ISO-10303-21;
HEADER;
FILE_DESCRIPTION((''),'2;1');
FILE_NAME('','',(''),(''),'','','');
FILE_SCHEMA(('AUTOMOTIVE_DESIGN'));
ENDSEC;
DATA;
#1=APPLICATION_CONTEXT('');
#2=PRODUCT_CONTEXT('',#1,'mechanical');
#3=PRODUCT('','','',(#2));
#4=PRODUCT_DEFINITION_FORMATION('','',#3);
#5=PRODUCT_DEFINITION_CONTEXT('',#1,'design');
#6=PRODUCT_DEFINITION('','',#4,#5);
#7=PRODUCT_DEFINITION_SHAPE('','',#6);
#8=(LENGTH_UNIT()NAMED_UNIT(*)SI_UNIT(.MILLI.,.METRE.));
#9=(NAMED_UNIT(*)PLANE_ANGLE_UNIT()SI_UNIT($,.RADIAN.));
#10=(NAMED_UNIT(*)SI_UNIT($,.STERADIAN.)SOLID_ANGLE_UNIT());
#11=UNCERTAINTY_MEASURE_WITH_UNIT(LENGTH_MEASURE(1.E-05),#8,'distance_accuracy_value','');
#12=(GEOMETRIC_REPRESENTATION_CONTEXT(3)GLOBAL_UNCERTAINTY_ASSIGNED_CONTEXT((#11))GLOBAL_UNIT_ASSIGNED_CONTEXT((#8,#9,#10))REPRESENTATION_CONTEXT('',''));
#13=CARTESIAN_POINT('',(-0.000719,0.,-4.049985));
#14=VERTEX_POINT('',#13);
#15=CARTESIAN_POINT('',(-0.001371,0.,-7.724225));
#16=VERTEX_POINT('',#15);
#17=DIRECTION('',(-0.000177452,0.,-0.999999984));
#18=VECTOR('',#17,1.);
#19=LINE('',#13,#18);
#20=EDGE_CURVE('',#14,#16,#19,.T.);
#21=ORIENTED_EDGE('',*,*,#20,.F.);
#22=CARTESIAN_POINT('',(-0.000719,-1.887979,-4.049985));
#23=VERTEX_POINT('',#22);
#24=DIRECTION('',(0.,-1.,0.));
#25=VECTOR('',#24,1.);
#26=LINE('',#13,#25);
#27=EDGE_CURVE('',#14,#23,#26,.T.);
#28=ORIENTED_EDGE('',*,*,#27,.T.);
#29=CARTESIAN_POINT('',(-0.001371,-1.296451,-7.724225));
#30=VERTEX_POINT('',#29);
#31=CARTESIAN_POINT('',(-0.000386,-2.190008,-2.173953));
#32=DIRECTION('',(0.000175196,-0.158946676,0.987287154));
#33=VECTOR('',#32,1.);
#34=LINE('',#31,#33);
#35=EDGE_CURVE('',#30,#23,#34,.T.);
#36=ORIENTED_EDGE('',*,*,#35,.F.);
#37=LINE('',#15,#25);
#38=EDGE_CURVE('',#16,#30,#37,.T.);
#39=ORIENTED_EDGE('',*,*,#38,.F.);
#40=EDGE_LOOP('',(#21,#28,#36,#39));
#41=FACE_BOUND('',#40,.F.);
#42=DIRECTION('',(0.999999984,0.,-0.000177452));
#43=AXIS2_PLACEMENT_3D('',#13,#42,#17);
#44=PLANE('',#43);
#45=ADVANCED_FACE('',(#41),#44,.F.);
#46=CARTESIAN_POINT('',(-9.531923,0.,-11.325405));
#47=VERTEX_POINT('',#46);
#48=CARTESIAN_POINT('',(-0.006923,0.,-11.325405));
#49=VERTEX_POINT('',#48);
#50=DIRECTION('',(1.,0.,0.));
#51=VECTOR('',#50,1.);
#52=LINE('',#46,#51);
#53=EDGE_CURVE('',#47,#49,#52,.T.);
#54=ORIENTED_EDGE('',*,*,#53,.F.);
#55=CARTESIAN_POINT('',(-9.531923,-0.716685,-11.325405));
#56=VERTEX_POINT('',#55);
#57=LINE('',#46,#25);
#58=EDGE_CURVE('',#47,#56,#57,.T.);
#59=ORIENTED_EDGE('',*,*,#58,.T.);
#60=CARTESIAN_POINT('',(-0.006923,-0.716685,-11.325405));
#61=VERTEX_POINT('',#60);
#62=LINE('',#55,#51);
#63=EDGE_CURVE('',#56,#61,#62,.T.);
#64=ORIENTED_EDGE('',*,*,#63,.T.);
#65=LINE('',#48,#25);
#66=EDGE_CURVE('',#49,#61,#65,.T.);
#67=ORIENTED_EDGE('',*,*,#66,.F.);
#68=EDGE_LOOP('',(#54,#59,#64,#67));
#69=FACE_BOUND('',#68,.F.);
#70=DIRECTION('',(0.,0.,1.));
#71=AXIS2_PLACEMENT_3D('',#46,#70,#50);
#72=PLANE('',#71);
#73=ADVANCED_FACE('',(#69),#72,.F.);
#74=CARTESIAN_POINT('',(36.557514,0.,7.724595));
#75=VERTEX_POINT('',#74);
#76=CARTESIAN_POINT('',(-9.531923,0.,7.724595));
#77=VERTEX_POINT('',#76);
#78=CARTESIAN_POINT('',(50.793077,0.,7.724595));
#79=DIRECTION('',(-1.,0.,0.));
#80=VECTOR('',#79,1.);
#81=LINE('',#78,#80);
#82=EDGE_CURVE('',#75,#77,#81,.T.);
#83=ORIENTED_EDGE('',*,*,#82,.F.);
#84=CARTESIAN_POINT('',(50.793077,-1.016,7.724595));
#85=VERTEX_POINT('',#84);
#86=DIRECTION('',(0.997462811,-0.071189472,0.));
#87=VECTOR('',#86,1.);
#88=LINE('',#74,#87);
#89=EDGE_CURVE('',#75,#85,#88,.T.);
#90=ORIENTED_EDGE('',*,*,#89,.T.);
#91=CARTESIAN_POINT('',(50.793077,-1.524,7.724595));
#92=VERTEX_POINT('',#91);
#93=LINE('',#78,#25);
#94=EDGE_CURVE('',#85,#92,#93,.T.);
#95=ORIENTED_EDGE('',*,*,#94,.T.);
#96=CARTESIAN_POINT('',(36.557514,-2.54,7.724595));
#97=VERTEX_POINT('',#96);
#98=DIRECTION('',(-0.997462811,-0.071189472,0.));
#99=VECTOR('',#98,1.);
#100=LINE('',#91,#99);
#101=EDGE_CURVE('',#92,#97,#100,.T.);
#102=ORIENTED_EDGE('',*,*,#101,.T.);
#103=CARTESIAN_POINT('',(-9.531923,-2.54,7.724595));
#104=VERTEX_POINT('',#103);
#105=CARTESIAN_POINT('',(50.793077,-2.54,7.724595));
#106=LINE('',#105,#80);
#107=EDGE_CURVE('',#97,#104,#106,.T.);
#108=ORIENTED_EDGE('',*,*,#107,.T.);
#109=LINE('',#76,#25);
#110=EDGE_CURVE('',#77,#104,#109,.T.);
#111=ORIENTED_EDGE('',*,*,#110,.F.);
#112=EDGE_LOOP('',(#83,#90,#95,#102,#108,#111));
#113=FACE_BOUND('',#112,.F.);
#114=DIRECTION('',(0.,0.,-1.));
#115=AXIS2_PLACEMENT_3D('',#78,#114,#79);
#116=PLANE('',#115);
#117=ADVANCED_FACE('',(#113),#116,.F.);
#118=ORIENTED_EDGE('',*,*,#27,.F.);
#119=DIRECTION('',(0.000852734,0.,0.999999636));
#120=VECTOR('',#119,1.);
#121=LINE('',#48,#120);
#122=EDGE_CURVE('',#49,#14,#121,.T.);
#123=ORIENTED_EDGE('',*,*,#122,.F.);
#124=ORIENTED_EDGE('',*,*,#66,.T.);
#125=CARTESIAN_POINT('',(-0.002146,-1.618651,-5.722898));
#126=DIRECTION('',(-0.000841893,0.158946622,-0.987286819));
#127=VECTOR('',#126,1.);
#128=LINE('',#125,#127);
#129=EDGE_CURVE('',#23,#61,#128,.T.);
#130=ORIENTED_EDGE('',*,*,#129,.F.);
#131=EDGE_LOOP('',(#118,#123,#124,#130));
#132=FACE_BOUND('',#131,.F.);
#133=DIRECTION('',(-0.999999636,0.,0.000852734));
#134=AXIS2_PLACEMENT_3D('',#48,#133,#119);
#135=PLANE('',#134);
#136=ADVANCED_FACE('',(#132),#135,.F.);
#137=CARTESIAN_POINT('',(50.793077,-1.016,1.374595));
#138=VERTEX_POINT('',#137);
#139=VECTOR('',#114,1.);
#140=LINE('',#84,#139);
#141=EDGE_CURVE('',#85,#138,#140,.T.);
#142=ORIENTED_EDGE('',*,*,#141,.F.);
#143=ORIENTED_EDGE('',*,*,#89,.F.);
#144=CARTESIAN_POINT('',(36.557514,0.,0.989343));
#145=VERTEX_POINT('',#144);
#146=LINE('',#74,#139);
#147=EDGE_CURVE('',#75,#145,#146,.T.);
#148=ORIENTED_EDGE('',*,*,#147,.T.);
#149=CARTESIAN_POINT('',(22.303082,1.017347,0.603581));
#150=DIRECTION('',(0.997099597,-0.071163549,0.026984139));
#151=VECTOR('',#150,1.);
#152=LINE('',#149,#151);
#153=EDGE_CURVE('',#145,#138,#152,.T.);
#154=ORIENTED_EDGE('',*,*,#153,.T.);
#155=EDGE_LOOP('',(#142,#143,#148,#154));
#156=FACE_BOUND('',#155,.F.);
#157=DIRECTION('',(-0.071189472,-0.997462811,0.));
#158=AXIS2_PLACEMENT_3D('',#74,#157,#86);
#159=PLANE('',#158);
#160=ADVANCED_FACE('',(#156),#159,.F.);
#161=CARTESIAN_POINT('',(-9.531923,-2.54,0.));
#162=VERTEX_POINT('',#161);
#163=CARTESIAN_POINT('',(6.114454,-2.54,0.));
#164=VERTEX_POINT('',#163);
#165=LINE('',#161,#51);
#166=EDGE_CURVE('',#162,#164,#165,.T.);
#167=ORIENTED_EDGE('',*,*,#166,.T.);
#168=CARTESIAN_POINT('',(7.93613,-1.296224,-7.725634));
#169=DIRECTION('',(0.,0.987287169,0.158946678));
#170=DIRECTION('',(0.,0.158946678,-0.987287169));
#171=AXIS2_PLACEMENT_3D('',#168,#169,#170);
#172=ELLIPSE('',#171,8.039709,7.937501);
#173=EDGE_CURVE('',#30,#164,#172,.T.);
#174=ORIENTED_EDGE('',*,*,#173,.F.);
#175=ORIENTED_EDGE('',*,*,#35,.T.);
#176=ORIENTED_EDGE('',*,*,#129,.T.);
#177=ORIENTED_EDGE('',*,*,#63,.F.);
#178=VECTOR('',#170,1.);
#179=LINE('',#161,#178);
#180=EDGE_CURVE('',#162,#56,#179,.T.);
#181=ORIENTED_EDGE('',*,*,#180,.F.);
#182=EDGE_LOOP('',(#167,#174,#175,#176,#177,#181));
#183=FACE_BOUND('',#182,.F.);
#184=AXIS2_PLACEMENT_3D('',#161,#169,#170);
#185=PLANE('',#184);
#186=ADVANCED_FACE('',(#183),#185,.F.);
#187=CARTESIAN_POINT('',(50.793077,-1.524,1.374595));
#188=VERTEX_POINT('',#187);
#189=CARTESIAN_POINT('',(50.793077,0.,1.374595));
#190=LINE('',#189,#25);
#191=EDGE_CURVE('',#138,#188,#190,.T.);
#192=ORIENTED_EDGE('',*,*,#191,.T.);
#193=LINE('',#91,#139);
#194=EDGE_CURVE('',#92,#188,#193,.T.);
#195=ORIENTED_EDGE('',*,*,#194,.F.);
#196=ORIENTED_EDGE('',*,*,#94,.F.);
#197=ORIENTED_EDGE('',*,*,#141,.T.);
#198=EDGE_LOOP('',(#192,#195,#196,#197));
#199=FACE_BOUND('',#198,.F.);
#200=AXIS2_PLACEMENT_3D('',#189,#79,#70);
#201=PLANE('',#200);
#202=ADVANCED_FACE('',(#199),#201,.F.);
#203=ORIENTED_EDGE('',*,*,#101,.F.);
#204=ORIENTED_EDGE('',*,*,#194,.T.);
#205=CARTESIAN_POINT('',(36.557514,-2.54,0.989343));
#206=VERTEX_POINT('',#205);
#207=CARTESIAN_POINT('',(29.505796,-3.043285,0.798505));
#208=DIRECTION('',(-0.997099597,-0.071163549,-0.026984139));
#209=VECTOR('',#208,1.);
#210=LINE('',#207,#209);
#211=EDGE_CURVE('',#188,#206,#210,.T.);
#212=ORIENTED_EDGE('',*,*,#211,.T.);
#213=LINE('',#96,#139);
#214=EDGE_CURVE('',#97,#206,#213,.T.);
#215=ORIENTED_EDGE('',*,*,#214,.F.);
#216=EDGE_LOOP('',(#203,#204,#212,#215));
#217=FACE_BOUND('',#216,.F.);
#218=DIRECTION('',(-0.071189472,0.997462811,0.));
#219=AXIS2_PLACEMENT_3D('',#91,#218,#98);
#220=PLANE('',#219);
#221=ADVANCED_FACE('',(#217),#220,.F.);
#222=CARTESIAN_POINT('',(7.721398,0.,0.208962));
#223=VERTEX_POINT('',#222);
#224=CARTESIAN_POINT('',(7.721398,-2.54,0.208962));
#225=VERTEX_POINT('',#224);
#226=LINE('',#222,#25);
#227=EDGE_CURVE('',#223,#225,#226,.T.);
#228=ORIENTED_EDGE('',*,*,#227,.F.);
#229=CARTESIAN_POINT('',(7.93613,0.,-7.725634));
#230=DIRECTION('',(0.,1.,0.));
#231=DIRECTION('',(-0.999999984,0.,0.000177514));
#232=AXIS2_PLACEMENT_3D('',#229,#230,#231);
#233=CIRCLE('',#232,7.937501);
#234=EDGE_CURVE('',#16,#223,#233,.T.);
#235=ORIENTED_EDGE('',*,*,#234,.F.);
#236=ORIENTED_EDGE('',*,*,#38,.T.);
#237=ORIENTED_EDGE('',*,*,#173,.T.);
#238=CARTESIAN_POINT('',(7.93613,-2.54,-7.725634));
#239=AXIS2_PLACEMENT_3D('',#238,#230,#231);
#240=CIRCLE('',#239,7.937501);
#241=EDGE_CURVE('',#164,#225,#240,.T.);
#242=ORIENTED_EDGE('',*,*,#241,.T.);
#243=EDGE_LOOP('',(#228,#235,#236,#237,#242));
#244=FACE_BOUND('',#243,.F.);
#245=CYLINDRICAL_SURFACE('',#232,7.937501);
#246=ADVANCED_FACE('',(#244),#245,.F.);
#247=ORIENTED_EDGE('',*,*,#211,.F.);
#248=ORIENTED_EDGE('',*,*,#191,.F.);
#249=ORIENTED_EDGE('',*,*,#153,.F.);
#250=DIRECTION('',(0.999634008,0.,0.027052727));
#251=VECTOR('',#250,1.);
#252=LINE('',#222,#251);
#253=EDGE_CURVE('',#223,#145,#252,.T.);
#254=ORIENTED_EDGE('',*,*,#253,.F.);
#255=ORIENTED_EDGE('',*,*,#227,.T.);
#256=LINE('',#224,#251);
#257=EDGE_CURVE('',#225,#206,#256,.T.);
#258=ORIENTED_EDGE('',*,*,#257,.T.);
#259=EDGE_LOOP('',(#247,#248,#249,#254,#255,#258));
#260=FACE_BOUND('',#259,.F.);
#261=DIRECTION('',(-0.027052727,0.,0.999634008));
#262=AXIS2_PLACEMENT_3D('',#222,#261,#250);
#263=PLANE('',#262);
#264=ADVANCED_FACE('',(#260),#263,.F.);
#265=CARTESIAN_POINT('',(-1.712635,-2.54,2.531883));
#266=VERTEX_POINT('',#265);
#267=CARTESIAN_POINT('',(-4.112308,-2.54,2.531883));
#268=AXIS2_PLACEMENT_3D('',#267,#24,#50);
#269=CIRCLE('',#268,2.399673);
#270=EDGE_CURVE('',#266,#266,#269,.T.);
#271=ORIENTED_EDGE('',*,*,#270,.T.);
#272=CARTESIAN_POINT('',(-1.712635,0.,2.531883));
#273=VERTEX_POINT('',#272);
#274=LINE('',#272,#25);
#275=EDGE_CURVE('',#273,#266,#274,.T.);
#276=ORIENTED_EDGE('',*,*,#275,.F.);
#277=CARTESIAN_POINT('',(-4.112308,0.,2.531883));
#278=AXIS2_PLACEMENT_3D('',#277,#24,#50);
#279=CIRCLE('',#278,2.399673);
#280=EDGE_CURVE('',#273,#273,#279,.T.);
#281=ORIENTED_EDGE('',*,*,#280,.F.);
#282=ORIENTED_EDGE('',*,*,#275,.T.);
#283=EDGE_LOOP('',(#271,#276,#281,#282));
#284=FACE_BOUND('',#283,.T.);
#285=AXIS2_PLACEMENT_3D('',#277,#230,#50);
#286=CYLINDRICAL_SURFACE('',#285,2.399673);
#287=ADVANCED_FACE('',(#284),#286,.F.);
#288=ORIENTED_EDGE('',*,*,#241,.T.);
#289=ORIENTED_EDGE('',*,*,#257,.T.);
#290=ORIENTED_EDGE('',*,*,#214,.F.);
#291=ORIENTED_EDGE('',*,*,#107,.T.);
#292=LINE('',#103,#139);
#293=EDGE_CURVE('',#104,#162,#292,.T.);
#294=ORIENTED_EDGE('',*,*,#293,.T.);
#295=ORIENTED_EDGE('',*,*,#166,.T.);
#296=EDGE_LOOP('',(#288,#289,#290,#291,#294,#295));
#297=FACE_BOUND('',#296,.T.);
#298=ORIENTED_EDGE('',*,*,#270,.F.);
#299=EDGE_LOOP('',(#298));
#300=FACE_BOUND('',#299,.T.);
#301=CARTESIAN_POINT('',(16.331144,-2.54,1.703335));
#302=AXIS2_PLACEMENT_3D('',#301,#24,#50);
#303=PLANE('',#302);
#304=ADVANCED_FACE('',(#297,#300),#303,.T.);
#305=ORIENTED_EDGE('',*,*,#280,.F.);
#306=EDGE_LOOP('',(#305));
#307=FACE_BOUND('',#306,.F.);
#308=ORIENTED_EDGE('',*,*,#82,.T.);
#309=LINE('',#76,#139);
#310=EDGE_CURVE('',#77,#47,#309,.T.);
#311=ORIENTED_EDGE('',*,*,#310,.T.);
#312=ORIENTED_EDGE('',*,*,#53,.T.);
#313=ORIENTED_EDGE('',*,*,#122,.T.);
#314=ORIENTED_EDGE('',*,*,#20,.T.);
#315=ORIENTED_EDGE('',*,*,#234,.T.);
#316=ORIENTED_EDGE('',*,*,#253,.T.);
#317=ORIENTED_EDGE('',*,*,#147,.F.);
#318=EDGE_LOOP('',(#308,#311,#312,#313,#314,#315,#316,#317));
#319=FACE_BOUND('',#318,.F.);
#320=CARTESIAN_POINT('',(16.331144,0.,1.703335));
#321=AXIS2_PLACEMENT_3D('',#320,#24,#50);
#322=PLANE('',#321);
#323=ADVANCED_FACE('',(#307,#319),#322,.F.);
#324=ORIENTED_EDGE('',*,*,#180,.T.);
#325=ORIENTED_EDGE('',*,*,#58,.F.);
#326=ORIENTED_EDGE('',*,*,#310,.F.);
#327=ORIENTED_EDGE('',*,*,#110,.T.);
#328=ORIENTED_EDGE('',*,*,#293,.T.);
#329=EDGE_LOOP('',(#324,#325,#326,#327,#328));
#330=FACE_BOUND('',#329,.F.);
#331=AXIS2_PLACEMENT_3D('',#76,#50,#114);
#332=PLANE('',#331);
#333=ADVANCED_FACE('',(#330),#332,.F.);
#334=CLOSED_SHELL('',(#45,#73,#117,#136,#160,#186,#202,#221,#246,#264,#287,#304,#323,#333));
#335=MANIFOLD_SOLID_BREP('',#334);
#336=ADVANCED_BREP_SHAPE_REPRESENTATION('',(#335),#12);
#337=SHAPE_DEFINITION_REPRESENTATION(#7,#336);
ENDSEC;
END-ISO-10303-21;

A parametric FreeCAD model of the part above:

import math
import FreeCAD as App
import Part
import Sketcher

V = App.Vector
Q = App.Units.Quantity


def add_polygon(sketch, points):
    """Adds a closed chain of lines whose ends are joined by coincident constraints."""
    first, n = sketch.GeometryCount, len(points)
    for a, b in zip(points, points[1:] + points[:1]):
        sketch.addGeometry(Part.LineSegment(App.Vector(*a, 0), App.Vector(*b, 0)), False)
    for i in range(n):
        sketch.addConstraint(Sketcher.Constraint("Coincident", first + i, 2, first + (i + 1) % n, 1))

doc = App.newDocument("Part")
params = doc.addObject("Spreadsheet::Sheet", "Params")
for row, (alias, value) in enumerate([
    ("sketch1_radius", "0.3125 in"),
    ("sketch1_height", "0.75 in"),
    ("sketch1_height2", "0.25 in"),
    ("sketch1_width", "2.375 in"),
    ("pad1_length", "0.1 in"),
    ("pocket1_length", "1 in"),
    ("sketch3_height", "0.04 in"),
    ("pocket2_length", "1 in"),
], start=1):
    params.set(f"A{row}", alias)
    params.set(f"B{row}", "=" + value)
    params.setAlias(f"B{row}", alias)

body = doc.addObject("PartDesign::Body", "Body")

sketch1 = doc.addObject("Sketcher::SketchObject", "Sketch")
body.addObject(sketch1)
sketch1.AttachmentSupport = (doc.XZ_Plane, [""])
sketch1.MapMode = "FlatFace"
sketch1.addGeometry([
    Part.LineSegment(V(50.8, 7.7, 0), V(-9.5, 7.7, 0)),
    Part.LineSegment(V(-9.5, 7.7, 0), V(-9.5, -11.3, 0)),
    Part.LineSegment(V(-9.5, -11.3, 0), V(0, -11.3, 0)),
    Part.LineSegment(V(0, -11.3, 0), V(0, -4, 0)),
    Part.LineSegment(V(0, -4, 0), V(0, -7.7, 0)),
    Part.ArcOfCircle(Part.Circle(V(7.9, -7.7, 0), V(0, 0, 1), 7.9), math.radians(92), math.radians(180)),
    Part.LineSegment(V(7.7, 0.2, 0), V(50.8, 1.4, 0)),
    Part.LineSegment(V(50.8, 1.4, 0), V(50.8, 7.7, 0)),
    Part.Circle(V(-4.1, 2.5, 0), V(0, 0, 1), 2.4),
], False)
sketch1.addConstraint([
    Sketcher.Constraint("Coincident", 0, 2, 1, 1),
    Sketcher.Constraint("Coincident", 1, 2, 2, 1),
    Sketcher.Constraint("Coincident", 2, 2, 3, 1),
    Sketcher.Constraint("Coincident", 3, 2, 4, 1),
    Sketcher.Constraint("Tangent", 4, 2, 5, 2),
    Sketcher.Constraint("Tangent", 5, 1, 6, 1),
    Sketcher.Constraint("Coincident", 6, 2, 7, 1),
    Sketcher.Constraint("Coincident", 7, 2, 0, 1),
    Sketcher.Constraint("Horizontal", 0),
    Sketcher.Constraint("Vertical", 1),
    Sketcher.Constraint("Horizontal", 2),
    Sketcher.Constraint("Vertical", 7),
    Sketcher.Constraint("Radius", 5, Q("0.3125 in")),
    Sketcher.Constraint("DistanceX", 2, 2, 6, 2, Q("2 in")),
    Sketcher.Constraint("DistanceY", 1, 2, 1, 1, Q("0.75 in")),
    Sketcher.Constraint("DistanceY", 7, 1, 7, 2, Q("0.25 in")),
    Sketcher.Constraint("DistanceX", 0, 2, 0, 1, Q("2.375 in")),
    Sketcher.Constraint("Diameter", 8, Q("4.799346 mm")),
    Sketcher.Constraint("DistanceX", -1, 1, 5, 1, Q("7.721398 mm")),
    Sketcher.Constraint("Distance", 4, Q("3.67424 mm")),
    Sketcher.Constraint("Distance", 6, Q("43.087449 mm")),
    Sketcher.Constraint("DistanceX", -1, 1, 5, 3, Q("7.93613 mm")),
    Sketcher.Constraint("DistanceX", 3, 2, -1, 1, Q("0.000719 mm")),
    Sketcher.Constraint("DistanceY", -1, 1, 5, 1, Q("0.208962 mm")),
    Sketcher.Constraint("DistanceX", 8, 3, 3, 2, Q("4.111589 mm")),
    Sketcher.Constraint("DistanceY", 5, 1, 8, 3, Q("2.322921 mm")),
])
sketch1.setExpression("Constraints[12]", "Params.sketch1_radius")
sketch1.setExpression("Constraints[14]", "Params.sketch1_height")
sketch1.setExpression("Constraints[15]", "Params.sketch1_height2")
sketch1.setExpression("Constraints[16]", "Params.sketch1_width")
pad1 = doc.addObject("PartDesign::Pad", "Pad")
body.addObject(pad1)
pad1.Profile = sketch1
pad1.setExpression("Length", "Params.pad1_length")

sketch2 = doc.addObject("Sketcher::SketchObject", "Sketch001")
body.addObject(sketch2)
sketch2.AttachmentSupport = (doc.YZ_Plane, [""])
sketch2.MapMode = "FlatFace"
sketch2.AttachmentOffset = App.Placement(V(0, 0, -9.531923), App.Rotation())
add_polygon(sketch2, [(-2.5, -11.3), (-2.5, 0), (-0.7, -11.3)])
sketch2.addConstraint([
    Sketcher.Constraint("Vertical", 0),
    Sketcher.Constraint("Horizontal", 2),
    Sketcher.Constraint("PointOnObject", 0, 2, -1),
    Sketcher.Constraint("DistanceX", 0, 2, -1, 1, Q("0.1 in")),
    Sketcher.Constraint("DistanceX", 2, 2, 2, 1, Q("1.823315 mm")),
    Sketcher.Constraint("DistanceY", 0, 1, 0, 2, Q("11.325405 mm")),
])
pocket1 = doc.addObject("PartDesign::Pocket", "Pocket")
body.addObject(pocket1)
pocket1.Profile = sketch2
pocket1.setExpression("Length", "Params.pocket1_length")
pocket1.Reversed = True

sketch3 = doc.addObject("Sketcher::SketchObject", "Sketch002")
body.addObject(sketch3)
sketch3.AttachmentSupport = (doc.XY_Plane, [""])
sketch3.MapMode = "FlatFace"
sketch3.AttachmentOffset = App.Placement(V(0, 0, 7.724595), App.Rotation())
add_polygon(sketch3, [(50.8, 0), (36.6, 0), (50.8, -1)])
add_polygon(sketch3, [(50.8, -1.5), (36.6, -2.5), (50.8, -2.5)])
sketch3.addConstraint([
    Sketcher.Constraint("Horizontal", 0),
    Sketcher.Constraint("Vertical", 2),
    Sketcher.Constraint("Horizontal", 4),
    Sketcher.Constraint("Vertical", 5),
    Sketcher.Constraint("PointOnObject", 0, 2, -1),
    Sketcher.Constraint("Vertical", 0, 2, 3, 2),
    Sketcher.Constraint("Vertical", 2, 2, 4, 2),
    Sketcher.Constraint("Equal", 2, 5),
    Sketcher.Constraint("DistanceY", 2, 1, 2, 2, Q("0.04 in")),
    Sketcher.Constraint("DistanceY", 3, 2, -1, 1, Q("0.1 in")),
    Sketcher.Constraint("DistanceX", 0, 2, 0, 1, Q("14.235563 mm")),
    Sketcher.Constraint("DistanceX", -1, 1, 0, 2, Q("36.557514 mm")),
])
sketch3.setExpression("Constraints[14]", "Params.sketch3_height")
pocket2 = doc.addObject("PartDesign::Pocket", "Pocket001")
body.addObject(pocket2)
pocket2.Profile = sketch3
pocket2.setExpression("Length", "Params.pocket2_length")

doc.recompute()
